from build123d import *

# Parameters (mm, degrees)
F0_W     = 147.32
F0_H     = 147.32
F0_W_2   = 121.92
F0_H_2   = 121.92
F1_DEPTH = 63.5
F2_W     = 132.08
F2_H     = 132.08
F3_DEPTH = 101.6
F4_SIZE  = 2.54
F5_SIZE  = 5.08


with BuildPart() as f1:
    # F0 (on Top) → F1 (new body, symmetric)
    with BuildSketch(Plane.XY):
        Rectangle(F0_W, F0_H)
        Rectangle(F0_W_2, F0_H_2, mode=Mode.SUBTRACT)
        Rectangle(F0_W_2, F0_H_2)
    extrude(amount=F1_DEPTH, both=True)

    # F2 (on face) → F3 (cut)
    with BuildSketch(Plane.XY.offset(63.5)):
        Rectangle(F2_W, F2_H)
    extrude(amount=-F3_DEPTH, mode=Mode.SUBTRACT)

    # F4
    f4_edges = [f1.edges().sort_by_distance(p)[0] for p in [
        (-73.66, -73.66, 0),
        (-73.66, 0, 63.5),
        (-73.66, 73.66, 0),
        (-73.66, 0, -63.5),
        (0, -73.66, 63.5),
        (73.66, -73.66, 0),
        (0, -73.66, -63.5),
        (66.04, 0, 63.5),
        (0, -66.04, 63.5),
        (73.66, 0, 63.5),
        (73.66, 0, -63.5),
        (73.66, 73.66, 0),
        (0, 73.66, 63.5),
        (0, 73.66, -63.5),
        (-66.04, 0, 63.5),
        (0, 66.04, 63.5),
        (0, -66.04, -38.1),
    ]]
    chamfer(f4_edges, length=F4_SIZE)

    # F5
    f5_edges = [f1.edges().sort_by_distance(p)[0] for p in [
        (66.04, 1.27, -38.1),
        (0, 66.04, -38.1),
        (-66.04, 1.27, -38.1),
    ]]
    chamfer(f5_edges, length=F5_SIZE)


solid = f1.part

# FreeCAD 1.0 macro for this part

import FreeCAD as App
import Part
import Sketcher
Q = App.Units.Quantity


def edges_at(feature, points):
    """Names of the edges that pass closest to the given points."""
    edges = feature.Shape.Edges
    near = lambda p: min(range(len(edges)), key=lambda i: edges[i].distToShape(Part.Vertex(*p))[0])
    return sorted({f"Edge{near(p) + 1}" for p in points})

doc = App.newDocument("Part")
params = doc.addObject("Spreadsheet::Sheet", "Params")
for row, (alias, value) in enumerate([
    ("sketch1_width", "5.8 in"),
    ("pad1_length", "5 in"),
    ("sketch2_width", "5.2 in"),
    ("pocket1_length", "4 in"),
    ("chamfer_size", "0.1 in"),
    ("chamfer2_size", "0.2 in"),
], start=1):
    params.set(f"A{row}", alias)
    params.set(f"B{row}", "=" + value)
    params.setAlias(f"B{row}", alias)

body = doc.addObject("PartDesign::Body", "Body")

sketch1 = doc.addObject("Sketcher::SketchObject", "Sketch")
body.addObject(sketch1)
sketch1.AttachmentSupport = (doc.XY_Plane, [""])
sketch1.MapMode = "FlatFace"
sketch1.addGeometry(Part.LineSegment(App.Vector(-74, 74, 0), App.Vector(-74, -74, 0)), False)
sketch1.addGeometry(Part.LineSegment(App.Vector(-74, -74, 0), App.Vector(74, -74, 0)), False)
sketch1.addGeometry(Part.LineSegment(App.Vector(74, -74, 0), App.Vector(74, 74, 0)), False)
sketch1.addGeometry(Part.LineSegment(App.Vector(74, 74, 0), App.Vector(-74, 74, 0)), False)
sketch1.addConstraint(Sketcher.Constraint("Coincident", 0, 2, 1, 1))
sketch1.addConstraint(Sketcher.Constraint("Coincident", 1, 2, 2, 1))
sketch1.addConstraint(Sketcher.Constraint("Coincident", 2, 2, 3, 1))
sketch1.addConstraint(Sketcher.Constraint("Coincident", 3, 2, 0, 1))
sketch1.addConstraint(Sketcher.Constraint("Vertical", 0))
sketch1.addConstraint(Sketcher.Constraint("Horizontal", 1))
sketch1.addConstraint(Sketcher.Constraint("Vertical", 2))
sketch1.addConstraint(Sketcher.Constraint("Horizontal", 3))
sketch1.addConstraint(Sketcher.Constraint("Symmetric", 0, 2, 2, 2, -1, 1))
sketch1.addConstraint(Sketcher.Constraint("Equal", 3, 0))
sketch1.addConstraint(Sketcher.Constraint("DistanceX", 1, 1, 1, 2, Q("5.8 in")))
sketch1.setExpression("Constraints[10]", "Params.sketch1_width")
pad1 = doc.addObject("PartDesign::Pad", "Pad")
body.addObject(pad1)
pad1.Profile = sketch1
pad1.setExpression("Length", "Params.pad1_length")
pad1.Midplane = True

sketch2 = doc.addObject("Sketcher::SketchObject", "Sketch001")
body.addObject(sketch2)
sketch2.AttachmentSupport = (doc.XY_Plane, [""])
sketch2.MapMode = "FlatFace"
sketch2.AttachmentOffset = App.Placement(App.Vector(0, 0, 2.5 * 25.4), App.Rotation())
sketch2.addGeometry(Part.LineSegment(App.Vector(-66, 66, 0), App.Vector(-66, -66, 0)), False)
sketch2.addGeometry(Part.LineSegment(App.Vector(-66, -66, 0), App.Vector(66, -66, 0)), False)
sketch2.addGeometry(Part.LineSegment(App.Vector(66, -66, 0), App.Vector(66, 66, 0)), False)
sketch2.addGeometry(Part.LineSegment(App.Vector(66, 66, 0), App.Vector(-66, 66, 0)), False)
sketch2.addConstraint(Sketcher.Constraint("Coincident", 0, 2, 1, 1))
sketch2.addConstraint(Sketcher.Constraint("Coincident", 1, 2, 2, 1))
sketch2.addConstraint(Sketcher.Constraint("Coincident", 2, 2, 3, 1))
sketch2.addConstraint(Sketcher.Constraint("Coincident", 3, 2, 0, 1))
sketch2.addConstraint(Sketcher.Constraint("Vertical", 0))
sketch2.addConstraint(Sketcher.Constraint("Horizontal", 1))
sketch2.addConstraint(Sketcher.Constraint("Vertical", 2))
sketch2.addConstraint(Sketcher.Constraint("Horizontal", 3))
sketch2.addConstraint(Sketcher.Constraint("Symmetric", 0, 2, 2, 2, -1, 1))
sketch2.addConstraint(Sketcher.Constraint("Equal", 3, 0))
sketch2.addConstraint(Sketcher.Constraint("DistanceX", 1, 1, 1, 2, Q("5.2 in")))
sketch2.setExpression("Constraints[10]", "Params.sketch2_width")
pocket1 = doc.addObject("PartDesign::Pocket", "Pocket")
body.addObject(pocket1)
pocket1.Profile = sketch2
pocket1.setExpression("Length", "Params.pocket1_length")
doc.recompute()

chamfer = doc.addObject("PartDesign::Chamfer", "Chamfer")
body.addObject(chamfer)
chamfer.Base = (pocket1, edges_at(pocket1, [
    (-73.66, -73.66, 0),
    (-73.66, 0, 63.5),
    (-73.66, 73.66, 0),
    (-73.66, 0, -63.5),
    (0, -73.66, 63.5),
    (73.66, -73.66, 0),
    (0, -73.66, -63.5),
    (66.04, 0, 63.5),
    (0, -66.04, 63.5),
    (73.66, 0, 63.5),
    (73.66, 0, -63.5),
    (73.66, 73.66, 0),
    (0, 73.66, 63.5),
    (0, 73.66, -63.5),
    (-66.04, 0, 63.5),
    (0, 66.04, 63.5),
    (0, -66.04, -38.1),
]))
chamfer.setExpression("Size", "Params.chamfer_size")
doc.recompute()

chamfer2 = doc.addObject("PartDesign::Chamfer", "Chamfer001")
body.addObject(chamfer2)
chamfer2.Base = (chamfer, edges_at(chamfer, [(66.04, 1.27, -38.1), (0, 66.04, -38.1), (-66.04, 1.27, -38.1)]))
chamfer2.setExpression("Size", "Params.chamfer2_size")

doc.recompute()
